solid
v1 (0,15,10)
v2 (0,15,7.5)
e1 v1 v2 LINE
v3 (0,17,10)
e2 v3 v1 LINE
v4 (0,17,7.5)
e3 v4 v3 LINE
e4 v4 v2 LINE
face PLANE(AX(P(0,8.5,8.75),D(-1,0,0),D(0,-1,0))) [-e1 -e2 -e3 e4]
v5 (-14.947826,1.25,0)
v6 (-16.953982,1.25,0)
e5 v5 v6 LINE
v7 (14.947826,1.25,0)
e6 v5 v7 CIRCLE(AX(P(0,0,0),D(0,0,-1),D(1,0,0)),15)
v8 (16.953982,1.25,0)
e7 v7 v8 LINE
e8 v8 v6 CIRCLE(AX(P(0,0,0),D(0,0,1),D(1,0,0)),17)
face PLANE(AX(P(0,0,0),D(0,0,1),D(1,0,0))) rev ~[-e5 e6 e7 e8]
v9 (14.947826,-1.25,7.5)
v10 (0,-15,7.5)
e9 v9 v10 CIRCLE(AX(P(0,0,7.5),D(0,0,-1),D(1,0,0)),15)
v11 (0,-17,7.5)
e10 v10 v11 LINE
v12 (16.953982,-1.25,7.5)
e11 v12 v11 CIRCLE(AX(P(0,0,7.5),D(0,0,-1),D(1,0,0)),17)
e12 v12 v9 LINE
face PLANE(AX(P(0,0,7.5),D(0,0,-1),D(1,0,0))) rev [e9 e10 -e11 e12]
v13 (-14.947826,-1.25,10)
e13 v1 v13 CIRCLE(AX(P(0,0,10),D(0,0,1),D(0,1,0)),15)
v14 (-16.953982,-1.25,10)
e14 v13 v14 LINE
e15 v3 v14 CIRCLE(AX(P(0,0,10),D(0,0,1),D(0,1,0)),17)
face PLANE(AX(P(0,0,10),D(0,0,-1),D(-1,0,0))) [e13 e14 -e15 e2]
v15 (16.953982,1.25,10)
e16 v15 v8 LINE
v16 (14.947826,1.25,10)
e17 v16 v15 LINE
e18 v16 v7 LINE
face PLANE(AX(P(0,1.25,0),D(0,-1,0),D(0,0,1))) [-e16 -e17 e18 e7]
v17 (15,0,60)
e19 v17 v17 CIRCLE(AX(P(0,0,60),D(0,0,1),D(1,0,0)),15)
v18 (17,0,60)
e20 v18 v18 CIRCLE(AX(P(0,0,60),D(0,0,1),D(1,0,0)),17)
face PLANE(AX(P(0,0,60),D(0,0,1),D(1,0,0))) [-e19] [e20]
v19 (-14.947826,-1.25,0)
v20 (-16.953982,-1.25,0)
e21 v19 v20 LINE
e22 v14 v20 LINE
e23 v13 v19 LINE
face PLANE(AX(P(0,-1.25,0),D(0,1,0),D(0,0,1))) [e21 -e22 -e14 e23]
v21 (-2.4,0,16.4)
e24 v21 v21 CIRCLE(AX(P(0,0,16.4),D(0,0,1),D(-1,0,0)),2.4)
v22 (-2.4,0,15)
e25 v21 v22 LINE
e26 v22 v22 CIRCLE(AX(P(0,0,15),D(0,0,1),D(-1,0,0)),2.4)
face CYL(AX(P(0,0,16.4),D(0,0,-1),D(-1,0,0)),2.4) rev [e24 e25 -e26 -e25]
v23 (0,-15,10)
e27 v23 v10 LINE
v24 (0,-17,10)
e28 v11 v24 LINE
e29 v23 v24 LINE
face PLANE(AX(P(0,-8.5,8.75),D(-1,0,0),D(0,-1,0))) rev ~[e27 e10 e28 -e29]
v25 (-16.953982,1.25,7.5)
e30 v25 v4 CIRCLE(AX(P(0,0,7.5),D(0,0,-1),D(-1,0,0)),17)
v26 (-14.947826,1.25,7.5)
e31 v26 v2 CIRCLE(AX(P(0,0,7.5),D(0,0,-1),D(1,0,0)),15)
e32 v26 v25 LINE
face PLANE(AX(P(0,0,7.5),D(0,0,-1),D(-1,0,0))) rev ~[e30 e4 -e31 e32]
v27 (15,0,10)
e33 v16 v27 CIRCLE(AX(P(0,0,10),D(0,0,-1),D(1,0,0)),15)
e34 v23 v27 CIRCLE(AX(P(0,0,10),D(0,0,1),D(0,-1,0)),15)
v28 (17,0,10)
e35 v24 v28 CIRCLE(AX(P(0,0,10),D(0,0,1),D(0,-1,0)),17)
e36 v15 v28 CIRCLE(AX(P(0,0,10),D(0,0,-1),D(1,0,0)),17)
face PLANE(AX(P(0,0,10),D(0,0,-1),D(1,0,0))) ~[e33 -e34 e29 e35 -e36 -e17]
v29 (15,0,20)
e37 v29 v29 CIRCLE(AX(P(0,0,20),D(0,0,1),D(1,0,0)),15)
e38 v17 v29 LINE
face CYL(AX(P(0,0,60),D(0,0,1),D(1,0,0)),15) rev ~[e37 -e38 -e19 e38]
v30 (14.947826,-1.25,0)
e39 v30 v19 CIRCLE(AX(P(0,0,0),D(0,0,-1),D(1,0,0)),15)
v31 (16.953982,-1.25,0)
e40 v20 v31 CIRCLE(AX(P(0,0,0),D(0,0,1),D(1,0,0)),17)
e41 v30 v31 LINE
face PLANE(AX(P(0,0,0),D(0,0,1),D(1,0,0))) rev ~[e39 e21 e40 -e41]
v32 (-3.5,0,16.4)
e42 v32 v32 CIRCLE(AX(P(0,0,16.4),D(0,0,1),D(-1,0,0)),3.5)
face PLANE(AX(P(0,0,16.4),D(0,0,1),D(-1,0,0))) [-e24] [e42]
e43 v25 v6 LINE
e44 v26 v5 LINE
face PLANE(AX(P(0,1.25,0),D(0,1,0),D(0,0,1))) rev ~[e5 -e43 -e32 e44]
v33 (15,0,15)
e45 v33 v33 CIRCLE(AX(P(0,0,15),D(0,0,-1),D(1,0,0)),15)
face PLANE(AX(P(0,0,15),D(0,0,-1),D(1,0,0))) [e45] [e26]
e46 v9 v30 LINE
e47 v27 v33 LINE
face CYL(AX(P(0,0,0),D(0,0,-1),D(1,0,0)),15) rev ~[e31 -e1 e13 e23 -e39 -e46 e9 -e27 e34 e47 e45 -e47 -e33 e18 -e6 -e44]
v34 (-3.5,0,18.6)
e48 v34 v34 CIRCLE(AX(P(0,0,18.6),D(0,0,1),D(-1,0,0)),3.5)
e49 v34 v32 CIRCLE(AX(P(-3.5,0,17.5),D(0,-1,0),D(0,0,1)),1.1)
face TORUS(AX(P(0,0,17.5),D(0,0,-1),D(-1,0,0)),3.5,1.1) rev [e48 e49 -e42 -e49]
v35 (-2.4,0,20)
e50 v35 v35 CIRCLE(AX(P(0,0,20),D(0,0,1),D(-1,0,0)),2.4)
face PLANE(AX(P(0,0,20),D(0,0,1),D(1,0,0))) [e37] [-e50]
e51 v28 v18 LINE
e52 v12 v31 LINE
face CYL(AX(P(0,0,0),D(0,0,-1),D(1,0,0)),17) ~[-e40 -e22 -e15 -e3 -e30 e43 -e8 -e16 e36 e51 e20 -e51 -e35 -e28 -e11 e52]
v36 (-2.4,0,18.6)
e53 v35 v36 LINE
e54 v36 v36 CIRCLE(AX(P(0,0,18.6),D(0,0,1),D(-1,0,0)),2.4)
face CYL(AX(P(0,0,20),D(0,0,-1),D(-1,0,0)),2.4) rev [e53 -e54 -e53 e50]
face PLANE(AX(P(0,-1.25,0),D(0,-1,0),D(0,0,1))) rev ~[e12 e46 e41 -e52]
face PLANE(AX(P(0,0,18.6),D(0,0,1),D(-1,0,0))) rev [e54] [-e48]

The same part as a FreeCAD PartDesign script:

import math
import FreeCAD as App
import Part
import Sketcher

V = App.Vector


def add_polygon(sketch, points):
    """Adds a closed chain of lines whose ends are joined by coincident constraints."""
    first, n = sketch.GeometryCount, len(points)
    for a, b in zip(points, points[1:] + points[:1]):
        sketch.addGeometry(Part.LineSegment(App.Vector(*a, 0), App.Vector(*b, 0)), False)
    for i in range(n):
        sketch.addConstraint(Sketcher.Constraint("Coincident", first + i, 2, first + (i + 1) % n, 1))

doc = App.newDocument("Part")
body = doc.addObject("PartDesign::Body", "Body")

sketch1 = body.newObject("Sketcher::SketchObject", "Sketch")
sketch1.AttachmentSupport = (doc.getObject("XY_Plane"), [""])
sketch1.MapMode = "FlatFace"
sketch1.addGeometry(Part.Circle(V(0, 0, 0), V(0, 0, 1), 17), False)
sketch1.addConstraint(Sketcher.Constraint("Coincident", 0, 3, -1, 1))
sketch1.addConstraint(Sketcher.Constraint("Diameter", 0, 34.0))
pad1 = body.newObject("PartDesign::Pad", "Pad")
pad1.Profile = sketch1
pad1.Length = 60

sketch2 = body.newObject("Sketcher::SketchObject", "Sketch001")
sketch2.AttachmentSupport = (doc.getObject("XY_Plane"), [""])
sketch2.MapMode = "FlatFace"
sketch2.AttachmentOffset = App.Placement(V(0, 0, 60), App.Rotation())
sketch2.addGeometry(Part.Circle(V(0, 0, 0), V(0, 0, 1), 15), False)
sketch2.addConstraint(Sketcher.Constraint("Coincident", 0, 3, -1, 1))
sketch2.addConstraint(Sketcher.Constraint("Diameter", 0, 30.0))
pocket1 = body.newObject("PartDesign::Pocket", "Pocket")
pocket1.Profile = sketch2
pocket1.Length = 40

sketch3 = body.newObject("Sketcher::SketchObject", "Sketch002")
sketch3.AttachmentSupport = (doc.getObject("XY_Plane"), [""])
sketch3.MapMode = "FlatFace"
sketch3.addGeometry(Part.Circle(V(0, 0, 0), V(0, 0, 1), 15), False)
sketch3.addConstraint(Sketcher.Constraint("Coincident", 0, 3, -1, 1))
sketch3.addConstraint(Sketcher.Constraint("Diameter", 0, 30.0))
pocket2 = body.newObject("PartDesign::Pocket", "Pocket001")
pocket2.Profile = sketch3
pocket2.Length = 15
pocket2.Reversed = True

sketch4 = body.newObject("Sketcher::SketchObject", "Sketch003")
sketch4.AttachmentSupport = (doc.getObject("YZ_Plane"), [""])
sketch4.MapMode = "FlatFace"
add_polygon(sketch4, [(-1.2, 10), (-1.2, 0), (1.2, 0), (1.2, 10)])
sketch4.addConstraint(Sketcher.Constraint("Vertical", 0))
sketch4.addConstraint(Sketcher.Constraint("Horizontal", 1))
sketch4.addConstraint(Sketcher.Constraint("Vertical", 2))
sketch4.addConstraint(Sketcher.Constraint("Horizontal", 3))
sketch4.addConstraint(Sketcher.Constraint("Symmetric", 0, 2, 1, 2, -1, 1))
sketch4.addConstraint(Sketcher.Constraint("DistanceY", 0, 2, 0, 1, 10.0))
sketch4.addConstraint(Sketcher.Constraint("DistanceX", 1, 1, 1, 2, 2.5))
pocket3 = body.newObject("PartDesign::Pocket", "Pocket002")
pocket3.Profile = sketch4
pocket3.Type = "ThroughAll"
pocket3.Midplane = True

sketch5 = body.newObject("Sketcher::SketchObject", "Sketch004")
sketch5.AttachmentSupport = (doc.getObject("XZ_Plane"), [""])
sketch5.MapMode = "FlatFace"
add_polygon(sketch5, [(-17, 10), (-17, 7.5), (0, 7.5), (0, 10)])
sketch5.addConstraint(Sketcher.Constraint("Vertical", 0))
sketch5.addConstraint(Sketcher.Constraint("Horizontal", 1))
sketch5.addConstraint(Sketcher.Constraint("Vertical", 2))
sketch5.addConstraint(Sketcher.Constraint("Horizontal", 3))
sketch5.addConstraint(Sketcher.Constraint("PointOnObject", 1, 2, -2))
sketch5.addConstraint(Sketcher.Constraint("DistanceX", 1, 1, 1, 2, 17.0))
sketch5.addConstraint(Sketcher.Constraint("DistanceY", 0, 2, 0, 1, 2.5))
sketch5.addConstraint(Sketcher.Constraint("DistanceY", -1, 1, 2, 2, 10.0))
groove = body.newObject("PartDesign::Groove", "Groove")
groove.Profile = sketch5
groove.ReferenceAxis = (sketch5, ["V_Axis"])
groove.Angle = 90
groove.Reversed = True

sketch6 = body.newObject("Sketcher::SketchObject", "Sketch005")
sketch6.AttachmentSupport = (doc.getObject("XZ_Plane"), [""])
sketch6.MapMode = "FlatFace"
add_polygon(sketch6, [(0, 10), (0, 7.5), (17, 7.5), (17, 10)])
sketch6.addConstraint(Sketcher.Constraint("Vertical", 0))
sketch6.addConstraint(Sketcher.Constraint("Horizontal", 1))
sketch6.addConstraint(Sketcher.Constraint("Vertical", 2))
sketch6.addConstraint(Sketcher.Constraint("Horizontal", 3))
sketch6.addConstraint(Sketcher.Constraint("PointOnObject", 0, 2, -2))
sketch6.addConstraint(Sketcher.Constraint("DistanceX", 1, 1, 1, 2, 17.0))
sketch6.addConstraint(Sketcher.Constraint("DistanceY", 0, 2, 0, 1, 2.5))
sketch6.addConstraint(Sketcher.Constraint("DistanceY", -1, 1, 2, 2, 10.0))
groove2 = body.newObject("PartDesign::Groove", "Groove001")
groove2.Profile = sketch6
groove2.ReferenceAxis = (sketch6, ["V_Axis"])
groove2.Angle = 90
groove2.Reversed = True

sketch7 = body.newObject("Sketcher::SketchObject", "Sketch006")
sketch7.AttachmentSupport = (doc.getObject("XZ_Plane"), [""])
sketch7.MapMode = "FlatFace"
sketch7.addGeometry(Part.LineSegment(V(-2.4, 15, 0), V(0, 15, 0)), False)
sketch7.addGeometry(Part.LineSegment(V(0, 15, 0), V(0, 20, 0)), False)
sketch7.addGeometry(Part.LineSegment(V(0, 20, 0), V(-2.4, 20, 0)), False)
sketch7.addGeometry(Part.LineSegment(V(-2.4, 20, 0), V(-2.4, 18.6, 0)), False)
sketch7.addGeometry(Part.LineSegment(V(-2.4, 18.6, 0), V(-3.5, 18.6, 0)), False)
sketch7.addGeometry(Part.ArcOfCircle(Part.Circle(V(-3.5, 17.5, 0), V(0, 0, 1), 1.1), math.radians(90), math.radians(270)), False)
sketch7.addGeometry(Part.LineSegment(V(-3.5, 16.4, 0), V(-2.4, 16.4, 0)), False)
sketch7.addGeometry(Part.LineSegment(V(-2.4, 16.4, 0), V(-2.4, 15, 0)), False)
sketch7.addConstraint(Sketcher.Constraint("Coincident", 0, 2, 1, 1))
sketch7.addConstraint(Sketcher.Constraint("Coincident", 1, 2, 2, 1))
sketch7.addConstraint(Sketcher.Constraint("Coincident", 2, 2, 3, 1))
sketch7.addConstraint(Sketcher.Constraint("Coincident", 3, 2, 4, 1))
sketch7.addConstraint(Sketcher.Constraint("Tangent", 4, 2, 5, 1))
sketch7.addConstraint(Sketcher.Constraint("Tangent", 5, 2, 6, 1))
sketch7.addConstraint(Sketcher.Constraint("Coincident", 6, 2, 7, 1))
sketch7.addConstraint(Sketcher.Constraint("Coincident", 7, 2, 0, 1))
sketch7.addConstraint(Sketcher.Constraint("Horizontal", 0))
sketch7.addConstraint(Sketcher.Constraint("Vertical", 1))
sketch7.addConstraint(Sketcher.Constraint("Horizontal", 2))
sketch7.addConstraint(Sketcher.Constraint("Vertical", 3))
sketch7.addConstraint(Sketcher.Constraint("Horizontal", 4))
sketch7.addConstraint(Sketcher.Constraint("Horizontal", 6))
sketch7.addConstraint(Sketcher.Constraint("Vertical", 7))
sketch7.addConstraint(Sketcher.Constraint("PointOnObject", 0, 2, -2))
sketch7.addConstraint(Sketcher.Constraint("Vertical", 3, 2, 6, 2))
sketch7.addConstraint(Sketcher.Constraint("Equal", 3, 7))
sketch7.addConstraint(Sketcher.Constraint("Radius", 5, 1.1))
sketch7.addConstraint(Sketcher.Constraint("DistanceY", 1, 1, 1, 2, 5.0))
sketch7.addConstraint(Sketcher.Constraint("DistanceX", 0, 1, 0, 2, 2.4))
sketch7.addConstraint(Sketcher.Constraint("DistanceX", 4, 2, 4, 1, 1.1))
sketch7.addConstraint(Sketcher.Constraint("DistanceY", -1, 1, 0, 2, 15.0))
groove3 = body.newObject("PartDesign::Groove", "Groove002")
groove3.Profile = sketch7
groove3.ReferenceAxis = (sketch7, ["V_Axis"])
groove3.Angle = 360

doc.recompute()
